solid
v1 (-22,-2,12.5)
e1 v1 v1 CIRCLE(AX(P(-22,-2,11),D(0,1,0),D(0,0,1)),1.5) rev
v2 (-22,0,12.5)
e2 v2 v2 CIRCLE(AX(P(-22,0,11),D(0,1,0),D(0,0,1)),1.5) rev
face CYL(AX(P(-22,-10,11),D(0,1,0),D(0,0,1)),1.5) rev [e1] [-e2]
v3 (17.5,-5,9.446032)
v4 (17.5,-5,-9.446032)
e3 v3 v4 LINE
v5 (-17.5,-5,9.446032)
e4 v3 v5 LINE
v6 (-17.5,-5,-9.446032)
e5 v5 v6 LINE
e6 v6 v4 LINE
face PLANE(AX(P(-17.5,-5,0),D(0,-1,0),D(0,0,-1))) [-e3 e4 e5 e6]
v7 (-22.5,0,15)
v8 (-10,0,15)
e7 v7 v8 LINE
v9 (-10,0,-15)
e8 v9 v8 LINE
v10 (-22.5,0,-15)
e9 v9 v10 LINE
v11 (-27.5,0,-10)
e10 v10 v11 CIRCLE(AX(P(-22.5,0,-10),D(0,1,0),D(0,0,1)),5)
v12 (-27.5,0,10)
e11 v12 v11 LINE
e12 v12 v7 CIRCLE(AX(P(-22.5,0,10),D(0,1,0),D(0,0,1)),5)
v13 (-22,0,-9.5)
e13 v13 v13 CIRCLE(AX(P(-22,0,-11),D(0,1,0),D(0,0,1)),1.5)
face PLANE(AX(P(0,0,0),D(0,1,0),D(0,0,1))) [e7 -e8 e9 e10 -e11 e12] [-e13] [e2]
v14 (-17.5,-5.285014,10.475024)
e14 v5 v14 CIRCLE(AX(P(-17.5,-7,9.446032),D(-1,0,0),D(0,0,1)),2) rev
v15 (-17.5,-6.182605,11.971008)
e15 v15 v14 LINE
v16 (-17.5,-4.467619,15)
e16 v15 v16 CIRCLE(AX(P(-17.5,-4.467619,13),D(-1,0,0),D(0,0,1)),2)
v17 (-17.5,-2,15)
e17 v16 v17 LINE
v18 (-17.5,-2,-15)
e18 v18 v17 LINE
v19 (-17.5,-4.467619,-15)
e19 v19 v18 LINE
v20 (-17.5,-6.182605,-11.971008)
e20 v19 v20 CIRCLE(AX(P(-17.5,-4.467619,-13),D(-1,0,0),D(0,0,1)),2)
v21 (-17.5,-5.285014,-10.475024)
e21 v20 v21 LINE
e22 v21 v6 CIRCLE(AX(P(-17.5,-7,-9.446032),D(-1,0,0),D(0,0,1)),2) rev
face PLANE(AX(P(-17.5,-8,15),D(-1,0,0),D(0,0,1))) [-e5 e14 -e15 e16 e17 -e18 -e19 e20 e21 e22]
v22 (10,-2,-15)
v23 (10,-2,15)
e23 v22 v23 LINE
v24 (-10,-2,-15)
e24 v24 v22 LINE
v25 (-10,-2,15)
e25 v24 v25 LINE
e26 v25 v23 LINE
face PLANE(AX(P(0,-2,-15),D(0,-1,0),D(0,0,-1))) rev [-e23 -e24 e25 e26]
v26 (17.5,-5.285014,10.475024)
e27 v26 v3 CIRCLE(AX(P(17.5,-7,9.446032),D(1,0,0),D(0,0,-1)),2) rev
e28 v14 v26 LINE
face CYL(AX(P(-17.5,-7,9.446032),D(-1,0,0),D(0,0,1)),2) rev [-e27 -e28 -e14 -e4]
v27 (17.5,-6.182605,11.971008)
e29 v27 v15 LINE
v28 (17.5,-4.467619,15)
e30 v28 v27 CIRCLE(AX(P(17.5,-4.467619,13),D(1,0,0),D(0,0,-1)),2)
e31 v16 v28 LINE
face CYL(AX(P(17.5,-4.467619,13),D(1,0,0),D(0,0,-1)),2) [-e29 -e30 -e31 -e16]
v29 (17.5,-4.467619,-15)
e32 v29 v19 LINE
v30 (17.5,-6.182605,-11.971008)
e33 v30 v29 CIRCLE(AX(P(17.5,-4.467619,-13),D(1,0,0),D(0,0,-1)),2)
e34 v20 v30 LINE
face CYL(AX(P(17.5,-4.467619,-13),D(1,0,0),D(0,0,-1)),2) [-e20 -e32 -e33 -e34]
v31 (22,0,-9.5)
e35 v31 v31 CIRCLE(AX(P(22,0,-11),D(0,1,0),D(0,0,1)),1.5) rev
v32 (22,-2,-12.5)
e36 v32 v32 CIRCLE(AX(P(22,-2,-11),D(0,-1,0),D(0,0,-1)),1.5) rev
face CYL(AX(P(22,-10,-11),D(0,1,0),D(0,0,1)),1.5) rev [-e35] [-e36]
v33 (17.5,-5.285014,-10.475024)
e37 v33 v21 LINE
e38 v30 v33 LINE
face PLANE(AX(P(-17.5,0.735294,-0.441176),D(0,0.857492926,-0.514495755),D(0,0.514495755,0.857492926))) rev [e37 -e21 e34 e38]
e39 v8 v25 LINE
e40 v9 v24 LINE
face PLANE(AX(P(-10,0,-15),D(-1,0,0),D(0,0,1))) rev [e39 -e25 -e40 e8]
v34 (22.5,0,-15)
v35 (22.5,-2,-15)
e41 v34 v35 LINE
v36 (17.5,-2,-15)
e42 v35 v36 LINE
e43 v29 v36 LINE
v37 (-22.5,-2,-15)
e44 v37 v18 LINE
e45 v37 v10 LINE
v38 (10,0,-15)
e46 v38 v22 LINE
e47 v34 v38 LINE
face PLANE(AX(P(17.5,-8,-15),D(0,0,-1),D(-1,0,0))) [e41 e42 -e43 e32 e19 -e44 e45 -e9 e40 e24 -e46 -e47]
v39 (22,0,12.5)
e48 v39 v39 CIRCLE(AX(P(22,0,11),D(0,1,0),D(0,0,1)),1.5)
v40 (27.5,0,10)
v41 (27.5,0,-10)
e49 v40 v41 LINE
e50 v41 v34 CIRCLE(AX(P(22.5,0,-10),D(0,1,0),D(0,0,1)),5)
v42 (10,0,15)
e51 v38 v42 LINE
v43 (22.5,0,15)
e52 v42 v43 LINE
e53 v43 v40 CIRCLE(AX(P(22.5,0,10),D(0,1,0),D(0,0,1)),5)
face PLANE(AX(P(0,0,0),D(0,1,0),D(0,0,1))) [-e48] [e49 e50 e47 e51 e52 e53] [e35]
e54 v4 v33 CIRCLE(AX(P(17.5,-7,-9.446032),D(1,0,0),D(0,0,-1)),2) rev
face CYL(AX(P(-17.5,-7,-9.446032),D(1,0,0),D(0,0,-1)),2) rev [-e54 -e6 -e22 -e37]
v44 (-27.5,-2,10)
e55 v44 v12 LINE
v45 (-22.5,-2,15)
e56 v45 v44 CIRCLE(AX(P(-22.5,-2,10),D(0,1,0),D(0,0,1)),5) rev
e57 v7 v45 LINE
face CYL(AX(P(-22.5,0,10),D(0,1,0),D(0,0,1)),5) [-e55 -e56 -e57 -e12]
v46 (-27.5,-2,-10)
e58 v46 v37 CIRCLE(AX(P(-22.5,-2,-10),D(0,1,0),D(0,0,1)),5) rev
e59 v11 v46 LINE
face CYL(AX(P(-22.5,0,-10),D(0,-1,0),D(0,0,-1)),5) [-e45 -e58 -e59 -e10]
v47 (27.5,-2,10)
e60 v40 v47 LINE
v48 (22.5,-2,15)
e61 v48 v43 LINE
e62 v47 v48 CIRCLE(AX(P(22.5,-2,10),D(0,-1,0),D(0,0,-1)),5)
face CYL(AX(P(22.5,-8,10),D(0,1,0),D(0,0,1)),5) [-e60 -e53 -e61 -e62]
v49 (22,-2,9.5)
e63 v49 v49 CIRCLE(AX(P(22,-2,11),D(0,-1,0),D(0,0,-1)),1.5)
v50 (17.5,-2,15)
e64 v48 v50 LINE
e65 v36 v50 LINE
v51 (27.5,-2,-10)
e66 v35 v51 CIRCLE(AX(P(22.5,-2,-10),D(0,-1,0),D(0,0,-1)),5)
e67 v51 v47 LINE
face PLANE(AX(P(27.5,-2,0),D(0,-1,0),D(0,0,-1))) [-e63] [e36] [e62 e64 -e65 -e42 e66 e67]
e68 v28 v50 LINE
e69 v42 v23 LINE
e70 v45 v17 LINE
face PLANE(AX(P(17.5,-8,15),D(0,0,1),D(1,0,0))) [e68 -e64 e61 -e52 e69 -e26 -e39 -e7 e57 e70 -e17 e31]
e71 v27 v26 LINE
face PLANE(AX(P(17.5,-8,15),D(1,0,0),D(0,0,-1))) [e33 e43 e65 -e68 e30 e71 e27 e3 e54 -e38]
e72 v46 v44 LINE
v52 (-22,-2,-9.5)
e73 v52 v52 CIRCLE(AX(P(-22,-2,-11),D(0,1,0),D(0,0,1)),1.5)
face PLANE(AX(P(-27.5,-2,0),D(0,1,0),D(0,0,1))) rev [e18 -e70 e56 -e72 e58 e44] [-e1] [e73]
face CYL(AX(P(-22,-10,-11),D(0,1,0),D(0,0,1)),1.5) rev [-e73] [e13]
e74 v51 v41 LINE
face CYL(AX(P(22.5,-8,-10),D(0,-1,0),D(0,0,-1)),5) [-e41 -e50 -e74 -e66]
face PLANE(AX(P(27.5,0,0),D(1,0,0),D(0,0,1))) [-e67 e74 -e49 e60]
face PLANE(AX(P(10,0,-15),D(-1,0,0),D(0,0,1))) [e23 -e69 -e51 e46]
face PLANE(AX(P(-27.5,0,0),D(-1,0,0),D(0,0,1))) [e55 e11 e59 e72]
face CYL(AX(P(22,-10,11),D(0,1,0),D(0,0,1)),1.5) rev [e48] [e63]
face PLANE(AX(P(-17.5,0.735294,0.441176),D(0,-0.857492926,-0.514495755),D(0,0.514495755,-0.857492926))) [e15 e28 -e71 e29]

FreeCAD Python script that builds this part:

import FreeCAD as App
import Part
import Sketcher

V = App.Vector
Q = App.Units.Quantity


def edges_at(feature, points):
    """Names of the edges that pass closest to the given points."""
    edges = feature.Shape.Edges
    near = lambda p: min(range(len(edges)), key=lambda i: edges[i].distToShape(Part.Vertex(*p))[0])
    return sorted({f"Edge{near(p) + 1}" for p in points})

doc = App.newDocument("Part")
body = doc.addObject("PartDesign::Body", "Body")

# Sketch on XZ plane
sketch1 = body.newObject("Sketcher::SketchObject", "Sketch")
sketch1.AttachmentSupport = (doc.getObject("XZ_Plane"), [""])
sketch1.MapMode = "FlatFace"
sketch1.addGeometry([
    Part.LineSegment(V(-17.5, -15, 0), V(-17.5, 15, 0)),
    Part.LineSegment(V(-17.5, 15, 0), V(17.5, 15, 0)),
    Part.LineSegment(V(17.5, 15, 0), V(17.5, -15, 0)),
    Part.LineSegment(V(17.5, -15, 0), V(-17.5, -15, 0)),
], False)
sketch1.addConstraint([
    Sketcher.Constraint("Coincident", 0, 2, 1, 1),
    Sketcher.Constraint("Coincident", 1, 2, 2, 1),
    Sketcher.Constraint("Coincident", 2, 2, 3, 1),
    Sketcher.Constraint("Coincident", 3, 2, 0, 1),
    Sketcher.Constraint("Vertical", 0),
    Sketcher.Constraint("Horizontal", 1),
    Sketcher.Constraint("Vertical", 2),
    Sketcher.Constraint("Horizontal", 3),
    Sketcher.Constraint("Symmetric", 0, 2, 2, 2, -1, 1),
    Sketcher.Constraint("DistanceX", 1, 1, 1, 2, Q("35 mm")),
    Sketcher.Constraint("DistanceY", 0, 1, 0, 2, Q("30 mm")),
])
pad1 = body.newObject("PartDesign::Pad", "Pad")
pad1.Profile = sketch1
pad1.Length = 8

# Sketch on YZ plane
sketch2 = body.newObject("Sketcher::SketchObject", "Sketch001")
sketch2.AttachmentSupport = (doc.getObject("YZ_Plane"), [""])
sketch2.MapMode = "FlatFace"
sketch2.AttachmentOffset = App.Placement(V(0, 0, 17.5), App.Rotation())
sketch2.addGeometry([
    Part.LineSegment(V(-5, 10, 0), V(-8, 15, 0)),
    Part.LineSegment(V(-8, 15, 0), V(-8, -15, 0)),
    Part.LineSegment(V(-8, -15, 0), V(-5, -10, 0)),
    Part.LineSegment(V(-5, -10, 0), V(-5, 10, 0)),
], False)
sketch2.addConstraint([
    Sketcher.Constraint("Coincident", 0, 2, 1, 1),
    Sketcher.Constraint("Coincident", 1, 2, 2, 1),
    Sketcher.Constraint("Coincident", 2, 2, 3, 1),
    Sketcher.Constraint("Coincident", 3, 2, 0, 1),
    Sketcher.Constraint("Vertical", 1),
    Sketcher.Constraint("Vertical", 3),
    Sketcher.Constraint("Equal", 0, 2),
    Sketcher.Constraint("DistanceY", 1, 2, 1, 1, Q("30 mm")),
    Sketcher.Constraint("DistanceY", 3, 1, 3, 2, Q("20 mm")),
    Sketcher.Constraint("DistanceX", 0, 2, -1, 1, Q("8 mm")),
    Sketcher.Constraint("DistanceY", -1, 1, 0, 2, Q("15 mm")),
    Sketcher.Constraint("DistanceX", 2, 2, -1, 1, Q("5 mm")),
])
pocket1 = body.newObject("PartDesign::Pocket", "Pocket")
pocket1.Profile = sketch2
pocket1.Type = "ThroughAll"
pocket1.Midplane = True
doc.recompute()

fillet = body.newObject("PartDesign::Fillet", "Fillet")
fillet.Base = (pocket1, edges_at(pocket1, [
    (0, -8, -15),
    (0, -5, 10),
    (0, -5, -10),
    (0, -8, 15),
]))
fillet.Radius = 2

# Sketch on YZ plane
sketch3 = body.newObject("Sketcher::SketchObject", "Sketch002")
sketch3.AttachmentSupport = (doc.getObject("YZ_Plane"), [""])
sketch3.MapMode = "FlatFace"
sketch3.AttachmentOffset = App.Placement(V(0, 0, -17.5), App.Rotation())
sketch3.addGeometry([
    Part.LineSegment(V(0, -15, 0), V(-2, -15, 0)),
    Part.LineSegment(V(-2, -15, 0), V(-2, 15, 0)),
    Part.LineSegment(V(-2, 15, 0), V(0, 15, 0)),
    Part.LineSegment(V(0, 15, 0), V(0, -15, 0)),
], False)
sketch3.addConstraint([
    Sketcher.Constraint("Coincident", 0, 2, 1, 1),
    Sketcher.Constraint("Coincident", 1, 2, 2, 1),
    Sketcher.Constraint("Coincident", 2, 2, 3, 1),
    Sketcher.Constraint("Coincident", 3, 2, 0, 1),
    Sketcher.Constraint("Horizontal", 0),
    Sketcher.Constraint("Vertical", 1),
    Sketcher.Constraint("Horizontal", 2),
    Sketcher.Constraint("Vertical", 3),
    Sketcher.Constraint("Symmetric", 2, 2, 3, 2, -1, 1),
    Sketcher.Constraint("DistanceX", 0, 2, 0, 1, Q("2 mm")),
    Sketcher.Constraint("DistanceY", 1, 1, 1, 2, Q("30 mm")),
])
pad2 = body.newObject("PartDesign::Pad", "Pad001")
pad2.Profile = sketch3
pad2.Length = 10
pad2.Reversed = True
doc.recompute()

mirrored = body.newObject("PartDesign::Mirrored", "Mirrored")
mirrored.Originals = [pad2]
mirrored.MirrorPlane = (doc.getObject("YZ_Plane"), [""])
body.Tip = mirrored

# Sketch on XZ plane
sketch4 = body.newObject("Sketcher::SketchObject", "Sketch003")
sketch4.AttachmentSupport = (doc.getObject("XZ_Plane"), [""])
sketch4.MapMode = "FlatFace"
sketch4.addGeometry([
    Part.Circle(V(-22, -11, 0), V(0, 0, 1), 1.5),
    Part.Circle(V(-22, 11, 0), V(0, 0, 1), 1.5),
    Part.Circle(V(22, 11, 0), V(0, 0, 1), 1.5),
    Part.Circle(V(22, -11, 0), V(0, 0, 1), 1.5),
], False)
sketch4.addConstraint([
    Sketcher.Constraint("Equal", 0, 1),
    Sketcher.Constraint("Equal", 1, 2),
    Sketcher.Constraint("Equal", 2, 3),
    Sketcher.Constraint("Symmetric", 0, 3, 2, 3, -1, 1),
    Sketcher.Constraint("Symmetric", 1, 3, 3, 3, -1, 1),
    Sketcher.Constraint("Symmetric", 1, 3, 2, 3, -2),
    Sketcher.Constraint("Diameter", 0, Q("3 mm")),
    Sketcher.Constraint("DistanceX", 0, 3, -1, 1, Q("22 mm")),
    Sketcher.Constraint("DistanceY", 0, 3, -1, 1, Q("11 mm")),
])
pocket2 = body.newObject("PartDesign::Pocket", "Pocket001")
pocket2.Profile = sketch4
pocket2.Length = 10
pocket2.Reversed = True

# Sketch on XY plane
sketch5 = body.newObject("Sketcher::SketchObject", "Sketch004")
sketch5.AttachmentSupport = (doc.getObject("XY_Plane"), [""])
sketch5.MapMode = "FlatFace"
sketch5.AttachmentOffset = App.Placement(V(0, 0, 15), App.Rotation())
sketch5.addGeometry([
    Part.LineSegment(V(10, -2, 0), V(10, 0, 0)),
    Part.LineSegment(V(10, 0, 0), V(-10, 0, 0)),
    Part.LineSegment(V(-10, 0, 0), V(-10, -2, 0)),
    Part.LineSegment(V(-10, -2, 0), V(10, -2, 0)),
], False)
sketch5.addConstraint([
    Sketcher.Constraint("Coincident", 0, 2, 1, 1),
    Sketcher.Constraint("Coincident", 1, 2, 2, 1),
    Sketcher.Constraint("Coincident", 2, 2, 3, 1),
    Sketcher.Constraint("Coincident", 3, 2, 0, 1),
    Sketcher.Constraint("Vertical", 0),
    Sketcher.Constraint("Horizontal", 1),
    Sketcher.Constraint("Vertical", 2),
    Sketcher.Constraint("Horizontal", 3),
    Sketcher.Constraint("Symmetric", 0, 2, 1, 2, -1, 1),
    Sketcher.Constraint("DistanceX", 1, 2, 1, 1, Q("20 mm")),
    Sketcher.Constraint("DistanceY", 0, 1, 0, 2, Q("2 mm")),
])
pocket3 = body.newObject("PartDesign::Pocket", "Pocket002")
pocket3.Profile = sketch5
pocket3.Type = "ThroughAll"
doc.recompute()

fillet2 = body.newObject("PartDesign::Fillet", "Fillet001")
fillet2.Base = (pocket3, edges_at(pocket3, [
    (-27.5, -1, -15),
    (-27.5, -1, 15),
    (27.5, -1, -15),
    (27.5, -1, 15),
]))
fillet2.Radius = 5

doc.recompute()
